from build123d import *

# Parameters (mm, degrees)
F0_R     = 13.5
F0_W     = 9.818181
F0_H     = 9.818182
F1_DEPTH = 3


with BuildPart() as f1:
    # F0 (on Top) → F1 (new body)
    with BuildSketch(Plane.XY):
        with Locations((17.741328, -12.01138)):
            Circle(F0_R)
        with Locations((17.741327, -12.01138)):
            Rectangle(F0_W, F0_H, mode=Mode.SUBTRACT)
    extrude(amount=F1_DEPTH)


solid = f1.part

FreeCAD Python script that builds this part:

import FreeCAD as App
import Part
import Sketcher

V = App.Vector


def add_polygon(sketch, points):
    """Adds a closed chain of lines whose ends are joined by coincident constraints."""
    first, n = sketch.GeometryCount, len(points)
    for a, b in zip(points, points[1:] + points[:1]):
        sketch.addGeometry(Part.LineSegment(App.Vector(*a, 0), App.Vector(*b, 0)), False)
    for i in range(n):
        sketch.addConstraint(Sketcher.Constraint("Coincident", first + i, 2, first + (i + 1) % n, 1))

doc = App.newDocument("Part")
params = doc.addObject("Spreadsheet::Sheet", "Params")
for row, (alias, value) in enumerate([
    ("sketch1_diameter", "27 mm"),
    ("pad1_length", "3 mm"),
], start=1):
    params.set(f"A{row}", alias)
    params.set(f"B{row}", "=" + value)
    params.setAlias(f"B{row}", alias)

body = doc.addObject("PartDesign::Body", "Body")

# Sketch on XY plane
sketch1 = body.newObject("Sketcher::SketchObject", "Sketch")
sketch1.AttachmentSupport = (doc.getObject("XY_Plane"), [""])
sketch1.MapMode = "FlatFace"
sketch1.addGeometry(Part.Circle(V(18, -12, 0), V(0, 0, 1), 14), False)  # 0
add_polygon(sketch1, [(23, -17), (13, -17), (13, -7), (23, -7)])  # lines 1-4
sketch1.addConstraint(Sketcher.Constraint("Horizontal", 1))
sketch1.addConstraint(Sketcher.Constraint("Vertical", 2))
sketch1.addConstraint(Sketcher.Constraint("Horizontal", 3))
sketch1.addConstraint(Sketcher.Constraint("Vertical", 4))
sketch1.addConstraint(Sketcher.Constraint("Equal", 3, 2))
sketch1.addConstraint(Sketcher.Constraint("Diameter", 0, 27.0))
sketch1.addConstraint(Sketcher.Constraint("DistanceX", 1, 2, 1, 1, 9.818181))
sketch1.addConstraint(Sketcher.Constraint("DistanceY", 0, 3, -1, 1, 12.01138))
sketch1.addConstraint(Sketcher.Constraint("DistanceY", 1, 2, -1, 1, 16.920471))
sketch1.addConstraint(Sketcher.Constraint("DistanceX", 1, 2, 0, 3, 4.909091))
sketch1.addConstraint(Sketcher.Constraint("DistanceX", -1, 1, 0, 3, 17.741328))
sketch1.setExpression("Constraints[9]", "Params.sketch1_diameter")
pad1 = body.newObject("PartDesign::Pad", "Pad")
pad1.Profile = sketch1
pad1.setExpression("Length", "Params.pad1_length")

doc.recompute()
